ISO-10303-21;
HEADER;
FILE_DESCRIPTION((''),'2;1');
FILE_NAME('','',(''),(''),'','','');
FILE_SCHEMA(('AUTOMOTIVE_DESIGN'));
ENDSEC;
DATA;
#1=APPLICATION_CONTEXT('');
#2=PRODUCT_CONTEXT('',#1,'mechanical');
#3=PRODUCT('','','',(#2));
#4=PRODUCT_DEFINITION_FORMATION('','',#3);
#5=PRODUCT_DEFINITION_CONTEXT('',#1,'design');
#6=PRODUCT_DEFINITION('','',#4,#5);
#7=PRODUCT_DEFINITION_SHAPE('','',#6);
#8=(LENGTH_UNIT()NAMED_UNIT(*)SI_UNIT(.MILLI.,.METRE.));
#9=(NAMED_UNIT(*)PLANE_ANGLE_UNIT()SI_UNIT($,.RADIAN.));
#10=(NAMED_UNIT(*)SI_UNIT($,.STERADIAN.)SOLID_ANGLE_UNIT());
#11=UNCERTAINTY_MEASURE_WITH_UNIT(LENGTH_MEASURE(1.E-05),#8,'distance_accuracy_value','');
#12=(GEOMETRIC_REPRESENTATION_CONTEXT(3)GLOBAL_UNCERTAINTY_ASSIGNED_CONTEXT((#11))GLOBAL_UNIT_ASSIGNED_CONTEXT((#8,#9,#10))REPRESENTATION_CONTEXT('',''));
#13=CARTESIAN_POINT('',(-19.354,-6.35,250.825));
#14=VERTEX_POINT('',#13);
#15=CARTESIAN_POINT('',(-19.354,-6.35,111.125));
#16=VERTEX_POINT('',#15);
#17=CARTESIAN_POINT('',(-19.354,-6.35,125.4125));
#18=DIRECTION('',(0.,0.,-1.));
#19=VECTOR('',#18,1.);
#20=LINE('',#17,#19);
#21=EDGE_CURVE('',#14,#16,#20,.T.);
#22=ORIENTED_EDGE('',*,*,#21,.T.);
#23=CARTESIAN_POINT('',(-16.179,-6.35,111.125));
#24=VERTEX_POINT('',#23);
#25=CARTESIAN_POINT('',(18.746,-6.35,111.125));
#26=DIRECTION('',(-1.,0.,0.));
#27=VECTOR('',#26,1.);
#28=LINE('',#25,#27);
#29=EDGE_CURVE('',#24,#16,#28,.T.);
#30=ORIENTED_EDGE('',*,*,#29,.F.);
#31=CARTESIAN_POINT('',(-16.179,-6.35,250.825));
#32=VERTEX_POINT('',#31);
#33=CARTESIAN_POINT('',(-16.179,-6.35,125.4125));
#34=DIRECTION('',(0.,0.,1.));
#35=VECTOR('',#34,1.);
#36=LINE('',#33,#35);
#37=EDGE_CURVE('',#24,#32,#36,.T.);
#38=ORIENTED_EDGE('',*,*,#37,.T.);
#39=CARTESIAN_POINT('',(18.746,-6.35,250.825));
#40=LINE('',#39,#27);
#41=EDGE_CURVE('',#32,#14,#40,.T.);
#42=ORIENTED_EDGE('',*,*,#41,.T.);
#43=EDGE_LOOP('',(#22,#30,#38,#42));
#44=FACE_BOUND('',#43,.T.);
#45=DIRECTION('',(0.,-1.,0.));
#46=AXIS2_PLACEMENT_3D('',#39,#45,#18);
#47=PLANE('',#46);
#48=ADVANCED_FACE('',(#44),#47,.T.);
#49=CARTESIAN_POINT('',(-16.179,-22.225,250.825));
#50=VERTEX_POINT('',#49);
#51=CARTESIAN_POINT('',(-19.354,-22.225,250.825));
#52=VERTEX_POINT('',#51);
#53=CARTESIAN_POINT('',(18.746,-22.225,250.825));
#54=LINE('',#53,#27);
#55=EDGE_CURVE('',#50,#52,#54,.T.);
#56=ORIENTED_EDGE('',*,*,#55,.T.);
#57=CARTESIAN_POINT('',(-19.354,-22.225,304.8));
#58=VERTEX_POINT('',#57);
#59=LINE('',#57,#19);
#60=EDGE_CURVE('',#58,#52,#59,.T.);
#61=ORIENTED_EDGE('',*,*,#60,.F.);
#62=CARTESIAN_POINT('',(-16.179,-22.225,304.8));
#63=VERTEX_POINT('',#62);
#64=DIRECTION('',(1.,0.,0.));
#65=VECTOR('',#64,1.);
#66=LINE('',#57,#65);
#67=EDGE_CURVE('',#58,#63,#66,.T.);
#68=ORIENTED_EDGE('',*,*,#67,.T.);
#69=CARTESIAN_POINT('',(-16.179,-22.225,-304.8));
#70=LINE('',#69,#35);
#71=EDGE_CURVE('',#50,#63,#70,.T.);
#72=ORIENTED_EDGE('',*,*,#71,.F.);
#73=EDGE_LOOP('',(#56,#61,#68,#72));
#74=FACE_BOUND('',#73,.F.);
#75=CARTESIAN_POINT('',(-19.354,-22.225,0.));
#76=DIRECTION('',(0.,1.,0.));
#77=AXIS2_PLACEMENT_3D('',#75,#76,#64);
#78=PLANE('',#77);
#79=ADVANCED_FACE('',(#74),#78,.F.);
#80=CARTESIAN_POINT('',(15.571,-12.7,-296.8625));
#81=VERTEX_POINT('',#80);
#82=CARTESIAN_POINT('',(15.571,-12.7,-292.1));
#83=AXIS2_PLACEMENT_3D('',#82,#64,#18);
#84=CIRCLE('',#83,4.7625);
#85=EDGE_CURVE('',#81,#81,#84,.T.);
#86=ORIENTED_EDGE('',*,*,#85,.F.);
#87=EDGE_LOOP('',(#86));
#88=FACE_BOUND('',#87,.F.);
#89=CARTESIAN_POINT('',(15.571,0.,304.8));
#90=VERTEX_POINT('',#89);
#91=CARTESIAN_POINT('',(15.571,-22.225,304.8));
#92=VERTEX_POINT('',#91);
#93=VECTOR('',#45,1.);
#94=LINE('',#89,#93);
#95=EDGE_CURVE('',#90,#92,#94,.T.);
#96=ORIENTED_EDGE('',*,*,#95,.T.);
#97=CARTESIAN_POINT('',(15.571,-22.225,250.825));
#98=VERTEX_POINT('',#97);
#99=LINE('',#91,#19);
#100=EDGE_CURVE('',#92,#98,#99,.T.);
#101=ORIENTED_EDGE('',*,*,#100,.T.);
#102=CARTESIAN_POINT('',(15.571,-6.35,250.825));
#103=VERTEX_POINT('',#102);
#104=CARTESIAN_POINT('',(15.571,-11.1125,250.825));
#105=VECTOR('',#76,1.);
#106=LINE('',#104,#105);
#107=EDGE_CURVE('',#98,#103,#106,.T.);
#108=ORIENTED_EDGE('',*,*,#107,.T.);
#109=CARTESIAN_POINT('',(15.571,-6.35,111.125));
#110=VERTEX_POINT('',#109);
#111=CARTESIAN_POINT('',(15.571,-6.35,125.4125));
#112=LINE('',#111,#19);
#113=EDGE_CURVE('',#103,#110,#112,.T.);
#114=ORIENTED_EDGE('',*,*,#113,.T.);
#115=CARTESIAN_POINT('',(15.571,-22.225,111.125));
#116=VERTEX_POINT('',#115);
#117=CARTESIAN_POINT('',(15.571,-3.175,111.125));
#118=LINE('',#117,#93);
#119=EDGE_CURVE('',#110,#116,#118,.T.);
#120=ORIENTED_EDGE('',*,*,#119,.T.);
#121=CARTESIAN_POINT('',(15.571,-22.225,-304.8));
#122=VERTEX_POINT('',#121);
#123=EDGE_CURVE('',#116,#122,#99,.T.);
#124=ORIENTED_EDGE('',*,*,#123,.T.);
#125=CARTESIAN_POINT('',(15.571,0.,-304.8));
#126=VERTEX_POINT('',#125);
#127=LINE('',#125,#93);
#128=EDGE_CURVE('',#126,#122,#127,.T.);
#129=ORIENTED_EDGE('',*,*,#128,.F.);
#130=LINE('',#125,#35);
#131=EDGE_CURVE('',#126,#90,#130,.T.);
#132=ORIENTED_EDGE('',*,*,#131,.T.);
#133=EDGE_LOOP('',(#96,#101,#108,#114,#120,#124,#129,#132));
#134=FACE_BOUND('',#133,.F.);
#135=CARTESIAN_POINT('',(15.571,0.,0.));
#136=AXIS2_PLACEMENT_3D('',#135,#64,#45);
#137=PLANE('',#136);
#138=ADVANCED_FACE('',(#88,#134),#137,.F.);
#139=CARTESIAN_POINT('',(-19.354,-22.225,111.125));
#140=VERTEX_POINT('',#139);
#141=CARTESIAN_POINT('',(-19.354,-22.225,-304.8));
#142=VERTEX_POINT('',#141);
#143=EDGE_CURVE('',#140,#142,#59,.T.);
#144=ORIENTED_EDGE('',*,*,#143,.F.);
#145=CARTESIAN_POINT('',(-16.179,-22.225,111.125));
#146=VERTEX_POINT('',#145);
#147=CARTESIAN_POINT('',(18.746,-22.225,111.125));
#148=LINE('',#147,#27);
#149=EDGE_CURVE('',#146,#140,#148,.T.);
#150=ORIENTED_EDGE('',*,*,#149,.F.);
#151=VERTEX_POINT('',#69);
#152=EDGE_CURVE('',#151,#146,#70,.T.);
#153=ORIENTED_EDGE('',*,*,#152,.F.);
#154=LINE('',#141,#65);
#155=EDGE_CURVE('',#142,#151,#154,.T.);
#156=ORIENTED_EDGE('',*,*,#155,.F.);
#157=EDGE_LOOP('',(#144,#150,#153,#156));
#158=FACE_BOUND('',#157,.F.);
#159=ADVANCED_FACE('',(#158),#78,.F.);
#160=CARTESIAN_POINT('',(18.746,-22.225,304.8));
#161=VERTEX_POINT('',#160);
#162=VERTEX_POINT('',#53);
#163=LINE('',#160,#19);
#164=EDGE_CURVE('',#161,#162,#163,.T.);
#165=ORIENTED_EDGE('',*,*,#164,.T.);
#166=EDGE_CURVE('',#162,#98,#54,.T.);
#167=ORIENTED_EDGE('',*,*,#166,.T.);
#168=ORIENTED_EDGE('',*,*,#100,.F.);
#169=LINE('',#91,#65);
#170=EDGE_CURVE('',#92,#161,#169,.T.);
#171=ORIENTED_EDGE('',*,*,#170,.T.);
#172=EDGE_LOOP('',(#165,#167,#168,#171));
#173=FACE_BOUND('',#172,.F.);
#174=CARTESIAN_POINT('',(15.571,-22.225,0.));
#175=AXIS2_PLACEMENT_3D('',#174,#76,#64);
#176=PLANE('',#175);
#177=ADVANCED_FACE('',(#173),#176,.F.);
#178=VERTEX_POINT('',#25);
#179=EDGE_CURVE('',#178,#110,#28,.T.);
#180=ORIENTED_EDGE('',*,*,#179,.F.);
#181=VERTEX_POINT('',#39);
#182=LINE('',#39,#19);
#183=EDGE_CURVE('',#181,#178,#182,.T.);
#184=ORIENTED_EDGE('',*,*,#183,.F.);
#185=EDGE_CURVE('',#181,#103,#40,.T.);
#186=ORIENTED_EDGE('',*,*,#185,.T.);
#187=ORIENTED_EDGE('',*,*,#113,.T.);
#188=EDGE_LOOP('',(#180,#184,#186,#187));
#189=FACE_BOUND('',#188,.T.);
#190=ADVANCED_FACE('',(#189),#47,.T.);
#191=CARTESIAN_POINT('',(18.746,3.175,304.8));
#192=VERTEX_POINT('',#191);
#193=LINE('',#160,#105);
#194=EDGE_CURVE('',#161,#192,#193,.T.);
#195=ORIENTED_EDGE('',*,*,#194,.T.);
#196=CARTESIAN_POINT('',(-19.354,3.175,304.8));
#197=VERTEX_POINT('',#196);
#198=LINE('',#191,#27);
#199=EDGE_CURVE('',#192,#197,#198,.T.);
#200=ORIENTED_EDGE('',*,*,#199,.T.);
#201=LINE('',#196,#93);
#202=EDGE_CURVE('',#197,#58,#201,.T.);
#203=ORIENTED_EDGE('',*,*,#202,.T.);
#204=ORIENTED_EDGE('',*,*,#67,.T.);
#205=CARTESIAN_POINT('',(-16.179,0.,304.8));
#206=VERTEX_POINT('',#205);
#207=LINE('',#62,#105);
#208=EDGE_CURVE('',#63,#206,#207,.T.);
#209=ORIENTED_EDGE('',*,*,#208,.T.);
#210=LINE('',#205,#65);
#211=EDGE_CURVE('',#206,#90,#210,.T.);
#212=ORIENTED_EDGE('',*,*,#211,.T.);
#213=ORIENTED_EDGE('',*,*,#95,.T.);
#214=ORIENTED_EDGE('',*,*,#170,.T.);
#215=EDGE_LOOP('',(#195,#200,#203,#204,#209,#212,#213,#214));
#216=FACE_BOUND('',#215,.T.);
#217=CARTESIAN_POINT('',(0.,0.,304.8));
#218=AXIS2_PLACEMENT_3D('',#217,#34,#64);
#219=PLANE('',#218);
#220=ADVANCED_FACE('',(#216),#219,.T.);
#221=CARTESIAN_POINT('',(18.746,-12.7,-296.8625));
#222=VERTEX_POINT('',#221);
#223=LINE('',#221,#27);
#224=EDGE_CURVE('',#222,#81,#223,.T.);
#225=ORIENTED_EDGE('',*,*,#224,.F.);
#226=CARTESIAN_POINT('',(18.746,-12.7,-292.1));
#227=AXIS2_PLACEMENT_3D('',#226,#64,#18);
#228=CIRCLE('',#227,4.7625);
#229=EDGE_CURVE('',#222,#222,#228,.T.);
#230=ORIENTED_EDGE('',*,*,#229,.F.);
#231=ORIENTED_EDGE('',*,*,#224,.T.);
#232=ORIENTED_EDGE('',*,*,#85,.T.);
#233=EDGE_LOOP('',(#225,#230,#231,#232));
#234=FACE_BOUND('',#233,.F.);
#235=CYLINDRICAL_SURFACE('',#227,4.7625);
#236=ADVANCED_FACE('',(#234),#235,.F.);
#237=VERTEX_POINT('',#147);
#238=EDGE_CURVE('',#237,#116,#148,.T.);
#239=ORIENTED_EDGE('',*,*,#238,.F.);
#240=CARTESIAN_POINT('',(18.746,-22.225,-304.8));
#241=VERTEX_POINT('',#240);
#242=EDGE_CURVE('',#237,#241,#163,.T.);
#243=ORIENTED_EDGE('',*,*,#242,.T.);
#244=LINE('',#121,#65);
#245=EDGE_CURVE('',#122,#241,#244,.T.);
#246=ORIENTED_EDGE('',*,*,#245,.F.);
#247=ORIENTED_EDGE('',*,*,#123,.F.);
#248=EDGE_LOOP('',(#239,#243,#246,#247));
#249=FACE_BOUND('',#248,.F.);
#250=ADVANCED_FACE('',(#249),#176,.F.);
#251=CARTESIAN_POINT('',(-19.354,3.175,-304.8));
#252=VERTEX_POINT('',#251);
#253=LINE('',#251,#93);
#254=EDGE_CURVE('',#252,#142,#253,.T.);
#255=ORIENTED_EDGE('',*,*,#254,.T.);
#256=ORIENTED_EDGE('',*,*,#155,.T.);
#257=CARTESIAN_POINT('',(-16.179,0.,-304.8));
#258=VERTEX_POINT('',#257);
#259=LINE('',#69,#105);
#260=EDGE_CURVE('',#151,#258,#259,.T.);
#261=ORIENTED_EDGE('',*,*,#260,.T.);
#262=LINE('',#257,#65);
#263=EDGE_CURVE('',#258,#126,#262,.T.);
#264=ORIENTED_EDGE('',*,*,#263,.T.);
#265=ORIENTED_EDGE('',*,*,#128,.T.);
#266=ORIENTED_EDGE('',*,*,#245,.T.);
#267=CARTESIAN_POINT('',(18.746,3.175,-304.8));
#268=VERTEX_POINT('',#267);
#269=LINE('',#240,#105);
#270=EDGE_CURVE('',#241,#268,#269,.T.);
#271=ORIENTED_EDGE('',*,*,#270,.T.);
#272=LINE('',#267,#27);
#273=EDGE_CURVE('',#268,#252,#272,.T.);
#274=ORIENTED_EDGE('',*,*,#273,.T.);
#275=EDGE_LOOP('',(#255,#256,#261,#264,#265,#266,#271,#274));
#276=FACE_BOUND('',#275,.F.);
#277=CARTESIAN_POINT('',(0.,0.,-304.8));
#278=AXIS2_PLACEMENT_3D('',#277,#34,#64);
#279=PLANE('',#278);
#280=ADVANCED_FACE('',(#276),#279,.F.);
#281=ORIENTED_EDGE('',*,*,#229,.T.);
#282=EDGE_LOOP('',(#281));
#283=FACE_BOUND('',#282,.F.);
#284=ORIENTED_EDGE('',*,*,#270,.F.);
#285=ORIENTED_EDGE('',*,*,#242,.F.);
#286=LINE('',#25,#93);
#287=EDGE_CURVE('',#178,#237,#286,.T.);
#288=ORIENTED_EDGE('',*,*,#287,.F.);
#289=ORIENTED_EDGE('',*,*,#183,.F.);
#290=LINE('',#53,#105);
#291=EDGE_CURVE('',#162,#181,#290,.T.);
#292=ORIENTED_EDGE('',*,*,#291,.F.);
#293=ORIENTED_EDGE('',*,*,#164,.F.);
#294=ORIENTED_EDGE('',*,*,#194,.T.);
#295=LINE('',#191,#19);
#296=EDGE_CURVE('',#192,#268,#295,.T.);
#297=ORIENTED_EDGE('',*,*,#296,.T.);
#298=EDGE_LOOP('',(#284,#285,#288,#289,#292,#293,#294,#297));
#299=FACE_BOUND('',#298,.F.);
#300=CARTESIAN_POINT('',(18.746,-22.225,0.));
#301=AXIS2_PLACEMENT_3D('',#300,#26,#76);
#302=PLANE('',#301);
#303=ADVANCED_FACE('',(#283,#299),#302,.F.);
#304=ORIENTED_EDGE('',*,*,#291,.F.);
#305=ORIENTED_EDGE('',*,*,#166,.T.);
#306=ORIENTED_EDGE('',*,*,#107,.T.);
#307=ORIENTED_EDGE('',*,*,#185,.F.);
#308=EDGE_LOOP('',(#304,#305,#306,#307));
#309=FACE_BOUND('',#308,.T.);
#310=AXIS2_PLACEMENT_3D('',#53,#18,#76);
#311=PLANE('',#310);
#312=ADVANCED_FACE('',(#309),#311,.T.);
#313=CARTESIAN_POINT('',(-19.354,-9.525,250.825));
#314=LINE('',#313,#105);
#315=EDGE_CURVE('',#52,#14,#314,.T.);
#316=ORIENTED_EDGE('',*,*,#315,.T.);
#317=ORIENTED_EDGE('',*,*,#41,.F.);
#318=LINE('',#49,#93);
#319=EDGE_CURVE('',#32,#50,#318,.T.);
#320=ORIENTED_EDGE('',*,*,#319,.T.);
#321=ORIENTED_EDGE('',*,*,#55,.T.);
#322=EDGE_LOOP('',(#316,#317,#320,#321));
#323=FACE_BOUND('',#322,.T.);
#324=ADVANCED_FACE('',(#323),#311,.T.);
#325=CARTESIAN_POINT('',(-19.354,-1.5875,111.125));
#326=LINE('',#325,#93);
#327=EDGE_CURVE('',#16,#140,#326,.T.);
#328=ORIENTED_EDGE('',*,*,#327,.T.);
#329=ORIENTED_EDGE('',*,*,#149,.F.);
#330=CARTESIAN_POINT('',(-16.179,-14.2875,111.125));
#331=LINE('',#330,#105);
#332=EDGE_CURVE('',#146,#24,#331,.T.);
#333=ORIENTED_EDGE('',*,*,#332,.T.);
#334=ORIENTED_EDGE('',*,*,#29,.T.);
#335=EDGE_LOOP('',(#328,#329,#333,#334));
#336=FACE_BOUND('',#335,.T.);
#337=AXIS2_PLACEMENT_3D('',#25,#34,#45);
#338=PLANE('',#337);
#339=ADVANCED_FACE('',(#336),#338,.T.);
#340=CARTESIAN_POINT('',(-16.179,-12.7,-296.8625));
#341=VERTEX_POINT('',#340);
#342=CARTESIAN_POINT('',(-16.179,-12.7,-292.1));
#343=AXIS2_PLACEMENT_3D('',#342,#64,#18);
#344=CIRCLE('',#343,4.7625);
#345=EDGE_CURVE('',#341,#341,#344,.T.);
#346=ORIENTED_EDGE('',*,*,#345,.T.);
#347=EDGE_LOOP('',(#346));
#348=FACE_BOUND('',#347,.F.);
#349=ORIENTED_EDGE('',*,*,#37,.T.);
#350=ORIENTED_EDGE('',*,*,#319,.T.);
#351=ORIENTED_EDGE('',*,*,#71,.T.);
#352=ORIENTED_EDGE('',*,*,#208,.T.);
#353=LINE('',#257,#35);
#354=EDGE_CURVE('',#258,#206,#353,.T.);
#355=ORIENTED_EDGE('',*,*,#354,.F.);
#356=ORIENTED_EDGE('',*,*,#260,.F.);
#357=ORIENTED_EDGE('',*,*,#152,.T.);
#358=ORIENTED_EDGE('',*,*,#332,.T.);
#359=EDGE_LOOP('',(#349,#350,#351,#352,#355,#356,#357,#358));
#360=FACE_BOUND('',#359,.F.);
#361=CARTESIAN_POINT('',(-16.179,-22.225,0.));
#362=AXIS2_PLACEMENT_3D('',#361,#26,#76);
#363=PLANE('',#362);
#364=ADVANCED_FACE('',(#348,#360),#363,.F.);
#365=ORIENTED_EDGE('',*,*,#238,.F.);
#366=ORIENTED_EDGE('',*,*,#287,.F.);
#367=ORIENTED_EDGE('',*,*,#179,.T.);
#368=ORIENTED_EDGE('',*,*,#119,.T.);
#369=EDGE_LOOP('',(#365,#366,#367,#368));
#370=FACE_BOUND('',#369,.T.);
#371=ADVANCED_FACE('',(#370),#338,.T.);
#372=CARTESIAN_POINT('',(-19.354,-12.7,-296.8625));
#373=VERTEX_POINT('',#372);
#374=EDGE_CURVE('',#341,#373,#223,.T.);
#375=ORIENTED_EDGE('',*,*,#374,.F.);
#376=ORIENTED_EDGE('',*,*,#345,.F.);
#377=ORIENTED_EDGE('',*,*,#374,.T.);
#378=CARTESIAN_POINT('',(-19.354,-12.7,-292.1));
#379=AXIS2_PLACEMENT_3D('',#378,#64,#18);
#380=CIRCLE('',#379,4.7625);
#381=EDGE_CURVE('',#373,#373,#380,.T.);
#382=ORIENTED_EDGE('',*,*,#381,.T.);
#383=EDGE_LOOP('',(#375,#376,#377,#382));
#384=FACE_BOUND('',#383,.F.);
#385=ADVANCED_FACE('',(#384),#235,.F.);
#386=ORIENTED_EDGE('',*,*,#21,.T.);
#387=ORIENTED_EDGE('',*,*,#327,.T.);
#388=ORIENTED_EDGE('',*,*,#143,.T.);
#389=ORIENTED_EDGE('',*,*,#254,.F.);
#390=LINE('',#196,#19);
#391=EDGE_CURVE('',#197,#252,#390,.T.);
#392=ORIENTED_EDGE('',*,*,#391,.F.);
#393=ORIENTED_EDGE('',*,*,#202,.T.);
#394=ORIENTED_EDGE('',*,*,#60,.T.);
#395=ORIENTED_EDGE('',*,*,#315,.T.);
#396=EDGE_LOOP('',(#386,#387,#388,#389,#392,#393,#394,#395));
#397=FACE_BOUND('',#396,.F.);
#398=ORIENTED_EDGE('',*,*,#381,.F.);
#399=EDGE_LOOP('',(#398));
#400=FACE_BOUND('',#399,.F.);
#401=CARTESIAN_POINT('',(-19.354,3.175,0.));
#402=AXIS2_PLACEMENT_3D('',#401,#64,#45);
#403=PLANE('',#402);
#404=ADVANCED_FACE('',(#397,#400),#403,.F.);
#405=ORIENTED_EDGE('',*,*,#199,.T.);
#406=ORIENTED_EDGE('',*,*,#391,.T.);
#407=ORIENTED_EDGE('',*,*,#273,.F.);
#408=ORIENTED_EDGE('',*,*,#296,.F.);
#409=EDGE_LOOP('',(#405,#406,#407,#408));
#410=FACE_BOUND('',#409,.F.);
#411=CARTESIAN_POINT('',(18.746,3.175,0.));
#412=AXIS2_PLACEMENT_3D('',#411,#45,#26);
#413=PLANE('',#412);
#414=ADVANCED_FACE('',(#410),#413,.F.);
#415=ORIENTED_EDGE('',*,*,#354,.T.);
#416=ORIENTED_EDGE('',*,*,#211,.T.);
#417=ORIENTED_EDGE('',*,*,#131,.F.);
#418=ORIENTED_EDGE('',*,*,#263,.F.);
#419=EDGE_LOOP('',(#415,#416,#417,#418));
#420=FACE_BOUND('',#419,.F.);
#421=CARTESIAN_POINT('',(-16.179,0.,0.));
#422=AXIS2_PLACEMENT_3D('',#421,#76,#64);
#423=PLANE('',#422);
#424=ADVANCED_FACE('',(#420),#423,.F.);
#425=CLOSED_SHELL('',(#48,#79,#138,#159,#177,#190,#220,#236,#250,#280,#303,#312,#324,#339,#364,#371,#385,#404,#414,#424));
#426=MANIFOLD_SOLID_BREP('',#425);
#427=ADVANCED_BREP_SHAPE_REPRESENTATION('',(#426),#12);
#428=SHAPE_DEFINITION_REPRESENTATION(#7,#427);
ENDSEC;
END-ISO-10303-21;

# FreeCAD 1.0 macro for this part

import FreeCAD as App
import Part
import Sketcher
Q = App.Units.Quantity

doc = App.newDocument("Part")
body = doc.addObject("PartDesign::Body", "Body")

# Sketch on XY plane
sketch1 = body.newObject("Sketcher::SketchObject", "Sketch")
sketch1.AttachmentSupport = (doc.getObject("XY_Plane"), [""])
sketch1.MapMode = "FlatFace"
sketch1.addGeometry(Part.LineSegment(App.Vector(-19.4, -22.2, 0), App.Vector(-16.2, -22.2, 0)), False)
sketch1.addGeometry(Part.LineSegment(App.Vector(-16.2, -22.2, 0), App.Vector(-16.2, 0, 0)), False)
sketch1.addGeometry(Part.LineSegment(App.Vector(-16.2, 0, 0), App.Vector(15.6, 0, 0)), False)
sketch1.addGeometry(Part.LineSegment(App.Vector(15.6, 0, 0), App.Vector(15.6, -22.2, 0)), False)
sketch1.addGeometry(Part.LineSegment(App.Vector(15.6, -22.2, 0), App.Vector(18.7, -22.2, 0)), False)
sketch1.addGeometry(Part.LineSegment(App.Vector(18.7, -22.2, 0), App.Vector(18.7, 3.2, 0)), False)
sketch1.addGeometry(Part.LineSegment(App.Vector(18.7, 3.2, 0), App.Vector(-19.4, 3.2, 0)), False)
sketch1.addGeometry(Part.LineSegment(App.Vector(-19.4, 3.2, 0), App.Vector(-19.4, -22.2, 0)), False)
sketch1.addConstraint(Sketcher.Constraint("Coincident", 0, 2, 1, 1))
sketch1.addConstraint(Sketcher.Constraint("Coincident", 1, 2, 2, 1))
sketch1.addConstraint(Sketcher.Constraint("Coincident", 2, 2, 3, 1))
sketch1.addConstraint(Sketcher.Constraint("Coincident", 3, 2, 4, 1))
sketch1.addConstraint(Sketcher.Constraint("Coincident", 4, 2, 5, 1))
sketch1.addConstraint(Sketcher.Constraint("Coincident", 5, 2, 6, 1))
sketch1.addConstraint(Sketcher.Constraint("Coincident", 6, 2, 7, 1))
sketch1.addConstraint(Sketcher.Constraint("Coincident", 7, 2, 0, 1))
sketch1.addConstraint(Sketcher.Constraint("Horizontal", 0))
sketch1.addConstraint(Sketcher.Constraint("Vertical", 1))
sketch1.addConstraint(Sketcher.Constraint("Horizontal", 2))
sketch1.addConstraint(Sketcher.Constraint("Vertical", 3))
sketch1.addConstraint(Sketcher.Constraint("Horizontal", 4))
sketch1.addConstraint(Sketcher.Constraint("Vertical", 5))
sketch1.addConstraint(Sketcher.Constraint("Horizontal", 6))
sketch1.addConstraint(Sketcher.Constraint("Vertical", 7))
sketch1.addConstraint(Sketcher.Constraint("PointOnObject", 1, 2, -1))
sketch1.addConstraint(Sketcher.Constraint("Horizontal", 0, 2, 3, 2))
sketch1.addConstraint(Sketcher.Constraint("Equal", 0, 4))
sketch1.addConstraint(Sketcher.Constraint("DistanceY", 5, 1, 5, 2, Q("1 in")))
sketch1.addConstraint(Sketcher.Constraint("DistanceX", 6, 2, 6, 1, Q("1.5 in")))
sketch1.addConstraint(Sketcher.Constraint("DistanceX", 2, 1, 2, 2, Q("1.25 in")))
sketch1.addConstraint(Sketcher.Constraint("DistanceY", -1, 1, 5, 2, Q("0.125 in")))
sketch1.addConstraint(Sketcher.Constraint("DistanceX", 0, 2, -1, 1, Q("16.179 mm")))
pad1 = body.newObject("PartDesign::Pad", "Pad")
pad1.Profile = sketch1
pad1.Length = Q("24 in")
pad1.Midplane = True

# Sketch on YZ plane
sketch2 = body.newObject("Sketcher::SketchObject", "Sketch001")
sketch2.AttachmentSupport = (doc.getObject("YZ_Plane"), [""])
sketch2.MapMode = "FlatFace"
sketch2.AttachmentOffset = App.Placement(App.Vector(0, 0, 18.746), App.Rotation())
sketch2.addGeometry(Part.Circle(App.Vector(-12.7, -292.1, 0), App.Vector(0, 0, 1), 4.8), False)
sketch2.addGeometry(Part.LineSegment(App.Vector(-6.3, 111.1, 0), App.Vector(-6.3, 250.8, 0)), False)
sketch2.addGeometry(Part.LineSegment(App.Vector(-6.3, 250.8, 0), App.Vector(-22.2, 250.8, 0)), False)
sketch2.addGeometry(Part.LineSegment(App.Vector(-22.2, 250.8, 0), App.Vector(-22.2, 111.1, 0)), False)
sketch2.addGeometry(Part.LineSegment(App.Vector(-22.2, 111.1, 0), App.Vector(-6.3, 111.1, 0)), False)
sketch2.addConstraint(Sketcher.Constraint("Coincident", 1, 2, 2, 1))
sketch2.addConstraint(Sketcher.Constraint("Coincident", 2, 2, 3, 1))
sketch2.addConstraint(Sketcher.Constraint("Coincident", 3, 2, 4, 1))
sketch2.addConstraint(Sketcher.Constraint("Coincident", 4, 2, 1, 1))
sketch2.addConstraint(Sketcher.Constraint("Vertical", 1))
sketch2.addConstraint(Sketcher.Constraint("Horizontal", 2))
sketch2.addConstraint(Sketcher.Constraint("Vertical", 3))
sketch2.addConstraint(Sketcher.Constraint("Horizontal", 4))
sketch2.addConstraint(Sketcher.Constraint("Diameter", 0, Q("0.375 in")))
sketch2.addConstraint(Sketcher.Constraint("DistanceY", 1, 1, 1, 2, Q("5.5 in")))
sketch2.addConstraint(Sketcher.Constraint("DistanceX", 0, 3, -1, 1, Q("0.5 in")))
sketch2.addConstraint(Sketcher.Constraint("DistanceX", 1, 2, -1, 1, Q("0.25 in")))
sketch2.addConstraint(Sketcher.Constraint("DistanceX", 2, 2, 0, 3, Q("0.375 in")))
sketch2.addConstraint(Sketcher.Constraint("DistanceY", 0, 3, -1, 1, Q("11.5 in")))
sketch2.addConstraint(Sketcher.Constraint("DistanceY", -1, 1, 1, 2, Q("9.875 in")))
pocket1 = body.newObject("PartDesign::Pocket", "Pocket")
pocket1.Profile = sketch2
pocket1.Type = "ThroughAll"

doc.recompute()
